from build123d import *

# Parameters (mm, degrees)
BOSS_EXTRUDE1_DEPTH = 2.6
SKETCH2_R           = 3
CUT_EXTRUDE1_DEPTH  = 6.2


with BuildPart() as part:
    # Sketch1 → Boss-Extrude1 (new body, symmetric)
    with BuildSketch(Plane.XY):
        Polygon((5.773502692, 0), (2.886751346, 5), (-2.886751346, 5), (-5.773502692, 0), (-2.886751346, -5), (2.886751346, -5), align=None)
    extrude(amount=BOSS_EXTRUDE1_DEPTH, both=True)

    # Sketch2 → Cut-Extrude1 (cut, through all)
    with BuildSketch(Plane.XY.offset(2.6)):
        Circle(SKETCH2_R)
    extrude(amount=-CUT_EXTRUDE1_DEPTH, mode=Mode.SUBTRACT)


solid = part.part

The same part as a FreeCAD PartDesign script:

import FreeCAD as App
import Part
import Sketcher

V = App.Vector
Q = App.Units.Quantity

doc = App.newDocument("Part")
body = doc.addObject("PartDesign::Body", "Body")

sketch1 = doc.addObject("Sketcher::SketchObject", "Sketch")
body.addObject(sketch1)
sketch1.AttachmentSupport = (doc.XY_Plane, [""])
sketch1.MapMode = "FlatFace"
sketch1.addGeometry(Part.LineSegment(V(5.773503, 0, 0), V(2.886751, 5, 0)), False)
sketch1.addGeometry(Part.LineSegment(V(2.886751, 5, 0), V(-2.886751, 5, 0)), False)
sketch1.addGeometry(Part.LineSegment(V(-2.886751, 5, 0), V(-5.773503, 0, 0)), False)
sketch1.addGeometry(Part.LineSegment(V(-5.773503, 0, 0), V(-2.886751, -5, 0)), False)
sketch1.addGeometry(Part.LineSegment(V(-2.886751, -5, 0), V(2.886751, -5, 0)), False)
sketch1.addGeometry(Part.LineSegment(V(2.886751, -5, 0), V(5.773503, 0, 0)), False)
sketch1.addConstraint(Sketcher.Constraint("Coincident", 0, 2, 1, 1))
sketch1.addConstraint(Sketcher.Constraint("Coincident", 1, 2, 2, 1))
sketch1.addConstraint(Sketcher.Constraint("Coincident", 2, 2, 3, 1))
sketch1.addConstraint(Sketcher.Constraint("Coincident", 3, 2, 4, 1))
sketch1.addConstraint(Sketcher.Constraint("Coincident", 4, 2, 5, 1))
sketch1.addConstraint(Sketcher.Constraint("Coincident", 5, 2, 0, 1))
sketch1.addConstraint(Sketcher.Constraint("Horizontal", 1))
sketch1.addConstraint(Sketcher.Constraint("Horizontal", 4))
sketch1.addConstraint(Sketcher.Constraint("Symmetric", 0, 2, 3, 2, -1, 1))
sketch1.addConstraint(Sketcher.Constraint("Symmetric", 2, 2, 5, 2, -1, 1))
sketch1.addConstraint(Sketcher.Constraint("PointOnObject", 2, 2, -1))
sketch1.addConstraint(Sketcher.Constraint("Parallel", 2, 5))
sketch1.addConstraint(Sketcher.Constraint("Vertical", 1, 2, 3, 2))
sketch1.addConstraint(Sketcher.Constraint("Angle", 0, Q("120 deg")))
sketch1.addConstraint(Sketcher.Constraint("DistanceY", -1, 1, 0, 2, 5.0))
sketch1.addConstraint(Sketcher.Constraint("DistanceX", 1, 2, 1, 1, 5.773503))
pad1 = doc.addObject("PartDesign::Pad", "Pad")
body.addObject(pad1)
pad1.Profile = sketch1
pad1.Length = 5.2
pad1.Midplane = True

sketch2 = doc.addObject("Sketcher::SketchObject", "Sketch001")
body.addObject(sketch2)
sketch2.AttachmentSupport = (doc.XY_Plane, [""])
sketch2.MapMode = "FlatFace"
sketch2.AttachmentOffset = App.Placement(V(0, 0, 2.6), App.Rotation())
sketch2.addGeometry(Part.Circle(V(0, 0, 0), V(0, 0, 1), 3), False)
sketch2.addConstraint(Sketcher.Constraint("Coincident", 0, 3, -1, 1))
sketch2.addConstraint(Sketcher.Constraint("Diameter", 0, 6.0))
pocket1 = doc.addObject("PartDesign::Pocket", "Pocket")
body.addObject(pocket1)
pocket1.Profile = sketch2
pocket1.Type = "ThroughAll"

doc.recompute()
